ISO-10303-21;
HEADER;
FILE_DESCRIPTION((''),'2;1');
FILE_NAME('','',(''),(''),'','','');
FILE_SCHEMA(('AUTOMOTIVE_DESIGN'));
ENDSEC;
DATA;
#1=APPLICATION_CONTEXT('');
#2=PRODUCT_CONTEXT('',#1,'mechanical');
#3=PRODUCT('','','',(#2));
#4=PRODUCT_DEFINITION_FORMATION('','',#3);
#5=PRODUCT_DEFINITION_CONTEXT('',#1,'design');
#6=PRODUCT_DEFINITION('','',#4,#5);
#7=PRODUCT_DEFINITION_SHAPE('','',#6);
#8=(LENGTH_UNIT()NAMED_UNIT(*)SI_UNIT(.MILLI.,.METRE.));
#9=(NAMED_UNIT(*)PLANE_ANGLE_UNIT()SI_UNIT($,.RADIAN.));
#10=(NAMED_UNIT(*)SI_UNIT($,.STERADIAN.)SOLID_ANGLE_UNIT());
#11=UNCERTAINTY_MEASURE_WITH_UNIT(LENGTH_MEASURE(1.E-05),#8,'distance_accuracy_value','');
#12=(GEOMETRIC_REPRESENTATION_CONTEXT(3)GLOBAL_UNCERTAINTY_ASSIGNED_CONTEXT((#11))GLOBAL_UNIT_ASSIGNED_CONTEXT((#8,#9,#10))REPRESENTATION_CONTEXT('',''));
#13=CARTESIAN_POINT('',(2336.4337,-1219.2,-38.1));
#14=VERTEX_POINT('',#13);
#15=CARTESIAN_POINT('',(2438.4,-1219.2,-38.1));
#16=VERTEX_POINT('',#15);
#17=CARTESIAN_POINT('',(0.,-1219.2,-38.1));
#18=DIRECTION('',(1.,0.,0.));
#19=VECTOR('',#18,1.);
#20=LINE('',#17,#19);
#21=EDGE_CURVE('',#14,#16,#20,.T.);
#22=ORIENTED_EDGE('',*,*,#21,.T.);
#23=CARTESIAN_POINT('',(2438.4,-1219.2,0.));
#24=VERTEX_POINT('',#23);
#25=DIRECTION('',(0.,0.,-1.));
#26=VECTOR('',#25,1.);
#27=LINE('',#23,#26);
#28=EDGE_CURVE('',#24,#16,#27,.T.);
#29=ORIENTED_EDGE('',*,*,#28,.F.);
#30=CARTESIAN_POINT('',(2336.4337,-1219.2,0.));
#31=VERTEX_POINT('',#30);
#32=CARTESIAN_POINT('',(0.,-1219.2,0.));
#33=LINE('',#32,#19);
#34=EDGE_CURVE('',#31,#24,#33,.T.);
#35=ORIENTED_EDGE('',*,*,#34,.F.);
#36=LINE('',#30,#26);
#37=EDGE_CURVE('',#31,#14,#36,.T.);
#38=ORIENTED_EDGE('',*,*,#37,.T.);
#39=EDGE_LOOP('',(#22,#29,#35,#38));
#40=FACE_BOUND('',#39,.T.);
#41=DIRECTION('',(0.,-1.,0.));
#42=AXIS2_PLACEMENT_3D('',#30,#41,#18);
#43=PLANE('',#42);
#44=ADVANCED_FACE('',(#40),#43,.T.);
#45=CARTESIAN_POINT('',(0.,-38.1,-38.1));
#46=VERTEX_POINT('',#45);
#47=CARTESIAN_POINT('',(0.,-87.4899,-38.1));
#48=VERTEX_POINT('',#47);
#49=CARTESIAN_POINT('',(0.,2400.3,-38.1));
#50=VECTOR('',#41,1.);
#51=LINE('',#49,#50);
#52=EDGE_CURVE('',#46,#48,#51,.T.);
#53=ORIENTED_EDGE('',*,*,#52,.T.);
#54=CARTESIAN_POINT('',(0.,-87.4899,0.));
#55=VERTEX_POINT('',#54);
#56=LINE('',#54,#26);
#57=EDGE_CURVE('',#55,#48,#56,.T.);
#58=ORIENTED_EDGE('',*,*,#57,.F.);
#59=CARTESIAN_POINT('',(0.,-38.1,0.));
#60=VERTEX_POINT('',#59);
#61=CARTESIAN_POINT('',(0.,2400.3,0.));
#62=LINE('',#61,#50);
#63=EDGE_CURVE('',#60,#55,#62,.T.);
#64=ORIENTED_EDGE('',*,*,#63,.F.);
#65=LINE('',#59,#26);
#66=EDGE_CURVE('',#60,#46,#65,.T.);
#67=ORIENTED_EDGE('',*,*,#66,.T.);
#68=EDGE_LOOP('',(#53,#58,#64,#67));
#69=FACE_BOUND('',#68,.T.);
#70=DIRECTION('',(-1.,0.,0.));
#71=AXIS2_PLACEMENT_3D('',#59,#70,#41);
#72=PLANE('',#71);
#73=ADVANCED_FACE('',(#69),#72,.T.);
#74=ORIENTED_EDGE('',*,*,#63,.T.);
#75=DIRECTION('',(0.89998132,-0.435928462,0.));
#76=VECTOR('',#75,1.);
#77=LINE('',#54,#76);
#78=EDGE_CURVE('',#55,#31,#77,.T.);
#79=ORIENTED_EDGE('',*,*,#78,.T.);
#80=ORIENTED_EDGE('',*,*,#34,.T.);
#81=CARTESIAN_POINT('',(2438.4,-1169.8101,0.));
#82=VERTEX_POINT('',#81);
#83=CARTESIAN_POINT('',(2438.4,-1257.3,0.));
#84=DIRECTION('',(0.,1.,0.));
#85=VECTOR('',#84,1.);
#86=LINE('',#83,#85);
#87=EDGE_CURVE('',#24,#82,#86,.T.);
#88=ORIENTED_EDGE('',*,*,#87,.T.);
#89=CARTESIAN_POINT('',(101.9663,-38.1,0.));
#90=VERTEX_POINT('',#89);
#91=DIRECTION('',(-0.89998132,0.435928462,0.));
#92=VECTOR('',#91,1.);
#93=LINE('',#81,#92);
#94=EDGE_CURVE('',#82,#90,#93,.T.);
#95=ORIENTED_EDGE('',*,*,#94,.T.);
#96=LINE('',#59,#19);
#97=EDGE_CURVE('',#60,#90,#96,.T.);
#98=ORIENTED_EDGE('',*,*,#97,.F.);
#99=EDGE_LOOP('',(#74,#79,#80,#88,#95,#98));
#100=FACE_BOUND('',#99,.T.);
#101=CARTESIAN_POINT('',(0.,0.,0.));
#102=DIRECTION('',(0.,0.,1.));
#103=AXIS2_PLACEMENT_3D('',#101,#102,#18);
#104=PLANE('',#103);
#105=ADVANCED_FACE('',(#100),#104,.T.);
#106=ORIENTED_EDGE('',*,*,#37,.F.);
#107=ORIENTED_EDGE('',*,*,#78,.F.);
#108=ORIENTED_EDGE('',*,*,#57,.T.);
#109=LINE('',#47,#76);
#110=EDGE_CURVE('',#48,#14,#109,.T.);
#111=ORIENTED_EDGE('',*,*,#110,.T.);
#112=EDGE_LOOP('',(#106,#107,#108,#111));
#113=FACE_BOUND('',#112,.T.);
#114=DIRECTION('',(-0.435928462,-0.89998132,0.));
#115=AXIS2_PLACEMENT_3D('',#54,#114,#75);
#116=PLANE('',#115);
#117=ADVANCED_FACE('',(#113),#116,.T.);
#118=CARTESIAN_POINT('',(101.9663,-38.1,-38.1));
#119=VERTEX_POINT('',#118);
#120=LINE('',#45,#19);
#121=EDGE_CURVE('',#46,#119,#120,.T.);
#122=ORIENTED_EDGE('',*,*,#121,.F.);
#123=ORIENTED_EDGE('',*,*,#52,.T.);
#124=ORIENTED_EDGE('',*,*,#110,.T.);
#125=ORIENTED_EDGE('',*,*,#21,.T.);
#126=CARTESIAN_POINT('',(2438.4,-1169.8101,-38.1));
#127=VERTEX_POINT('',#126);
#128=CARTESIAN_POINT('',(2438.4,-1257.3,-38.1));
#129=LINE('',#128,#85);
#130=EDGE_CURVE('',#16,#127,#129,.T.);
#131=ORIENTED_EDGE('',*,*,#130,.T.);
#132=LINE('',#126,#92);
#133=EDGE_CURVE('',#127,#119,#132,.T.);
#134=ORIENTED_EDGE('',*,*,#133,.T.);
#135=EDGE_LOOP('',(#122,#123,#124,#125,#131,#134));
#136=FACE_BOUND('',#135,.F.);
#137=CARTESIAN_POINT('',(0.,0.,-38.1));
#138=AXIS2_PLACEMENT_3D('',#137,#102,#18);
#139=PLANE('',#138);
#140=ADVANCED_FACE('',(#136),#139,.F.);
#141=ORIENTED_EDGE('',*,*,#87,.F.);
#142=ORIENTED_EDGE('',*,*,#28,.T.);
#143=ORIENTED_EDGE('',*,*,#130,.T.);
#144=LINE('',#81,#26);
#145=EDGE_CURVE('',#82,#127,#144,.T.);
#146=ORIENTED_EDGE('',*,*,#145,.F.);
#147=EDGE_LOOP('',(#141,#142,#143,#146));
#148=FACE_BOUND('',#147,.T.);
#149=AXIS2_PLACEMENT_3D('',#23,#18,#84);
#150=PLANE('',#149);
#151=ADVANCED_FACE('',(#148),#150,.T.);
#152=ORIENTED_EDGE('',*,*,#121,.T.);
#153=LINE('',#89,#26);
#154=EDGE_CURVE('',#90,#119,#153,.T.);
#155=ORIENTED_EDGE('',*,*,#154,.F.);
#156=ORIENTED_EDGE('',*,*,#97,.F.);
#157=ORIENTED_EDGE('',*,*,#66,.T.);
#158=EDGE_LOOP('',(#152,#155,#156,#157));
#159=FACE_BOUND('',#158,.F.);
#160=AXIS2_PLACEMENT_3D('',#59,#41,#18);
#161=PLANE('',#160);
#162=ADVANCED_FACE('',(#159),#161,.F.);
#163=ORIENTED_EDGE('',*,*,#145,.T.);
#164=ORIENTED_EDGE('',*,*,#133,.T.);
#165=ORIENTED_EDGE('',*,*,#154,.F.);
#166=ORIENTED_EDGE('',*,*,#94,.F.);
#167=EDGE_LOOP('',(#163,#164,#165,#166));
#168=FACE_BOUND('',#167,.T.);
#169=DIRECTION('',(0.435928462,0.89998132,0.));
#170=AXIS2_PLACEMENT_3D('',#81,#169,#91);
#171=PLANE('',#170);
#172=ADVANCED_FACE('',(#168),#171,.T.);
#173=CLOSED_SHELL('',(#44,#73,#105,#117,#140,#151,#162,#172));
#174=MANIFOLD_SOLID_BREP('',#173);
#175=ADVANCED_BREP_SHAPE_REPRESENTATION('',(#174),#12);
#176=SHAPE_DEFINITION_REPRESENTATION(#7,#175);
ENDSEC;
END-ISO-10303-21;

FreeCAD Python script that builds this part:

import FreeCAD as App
import Part
import Sketcher
from FreeCAD import Vector
Q = App.Units.Quantity

doc = App.newDocument("Part")
body = doc.addObject("PartDesign::Body", "Body")

# Sketch on XY plane
sketch1 = body.newObject("Sketcher::SketchObject", "Sketch")
sketch1.AttachmentSupport = (doc.getObject("XY_Plane"), [""])
sketch1.MapMode = "FlatFace"
sketch1.addGeometry(Part.LineSegment(Vector(102, -38, 0), Vector(0, -38, 0)), False)
sketch1.addGeometry(Part.LineSegment(Vector(0, -38, 0), Vector(0, -87, 0)), False)
sketch1.addGeometry(Part.LineSegment(Vector(0, -87, 0), Vector(2336, -1219, 0)), False)
sketch1.addGeometry(Part.LineSegment(Vector(2336, -1219, 0), Vector(2438, -1219, 0)), False)
sketch1.addGeometry(Part.LineSegment(Vector(2438, -1219, 0), Vector(2438, -1170, 0)), False)
sketch1.addGeometry(Part.LineSegment(Vector(2438, -1170, 0), Vector(102, -38, 0)), False)
sketch1.addConstraint(Sketcher.Constraint("Coincident", 0, 2, 1, 1))
sketch1.addConstraint(Sketcher.Constraint("Coincident", 1, 2, 2, 1))
sketch1.addConstraint(Sketcher.Constraint("Coincident", 2, 2, 3, 1))
sketch1.addConstraint(Sketcher.Constraint("Coincident", 3, 2, 4, 1))
sketch1.addConstraint(Sketcher.Constraint("Coincident", 4, 2, 5, 1))
sketch1.addConstraint(Sketcher.Constraint("Coincident", 5, 2, 0, 1))
sketch1.addConstraint(Sketcher.Constraint("Horizontal", 0))
sketch1.addConstraint(Sketcher.Constraint("Vertical", 1))
sketch1.addConstraint(Sketcher.Constraint("Horizontal", 3))
sketch1.addConstraint(Sketcher.Constraint("Vertical", 4))
sketch1.addConstraint(Sketcher.Constraint("PointOnObject", 0, 2, -2))
sketch1.addConstraint(Sketcher.Constraint("Parallel", 2, 5))
sketch1.addConstraint(Sketcher.Constraint("Equal", 0, 3))
sketch1.addConstraint(Sketcher.Constraint("DistanceY", 2, 2, -1, 1, Q("48 in")))
sketch1.addConstraint(Sketcher.Constraint("DistanceX", -1, 1, 3, 2, Q("96 in")))
sketch1.addConstraint(Sketcher.Constraint("DistanceY", 0, 2, -1, 1, Q("1.5 in")))
sketch1.addConstraint(Sketcher.Constraint("DistanceX", 0, 2, 0, 1, 101.9663))
sketch1.addConstraint(Sketcher.Constraint("DistanceY", 1, 2, 1, 1, Q("1.9444882 in")))
pad1 = body.newObject("PartDesign::Pad", "Pad")
pad1.Profile = sketch1
pad1.Length = Q("1.5 in")
pad1.Reversed = True

doc.recompute()
